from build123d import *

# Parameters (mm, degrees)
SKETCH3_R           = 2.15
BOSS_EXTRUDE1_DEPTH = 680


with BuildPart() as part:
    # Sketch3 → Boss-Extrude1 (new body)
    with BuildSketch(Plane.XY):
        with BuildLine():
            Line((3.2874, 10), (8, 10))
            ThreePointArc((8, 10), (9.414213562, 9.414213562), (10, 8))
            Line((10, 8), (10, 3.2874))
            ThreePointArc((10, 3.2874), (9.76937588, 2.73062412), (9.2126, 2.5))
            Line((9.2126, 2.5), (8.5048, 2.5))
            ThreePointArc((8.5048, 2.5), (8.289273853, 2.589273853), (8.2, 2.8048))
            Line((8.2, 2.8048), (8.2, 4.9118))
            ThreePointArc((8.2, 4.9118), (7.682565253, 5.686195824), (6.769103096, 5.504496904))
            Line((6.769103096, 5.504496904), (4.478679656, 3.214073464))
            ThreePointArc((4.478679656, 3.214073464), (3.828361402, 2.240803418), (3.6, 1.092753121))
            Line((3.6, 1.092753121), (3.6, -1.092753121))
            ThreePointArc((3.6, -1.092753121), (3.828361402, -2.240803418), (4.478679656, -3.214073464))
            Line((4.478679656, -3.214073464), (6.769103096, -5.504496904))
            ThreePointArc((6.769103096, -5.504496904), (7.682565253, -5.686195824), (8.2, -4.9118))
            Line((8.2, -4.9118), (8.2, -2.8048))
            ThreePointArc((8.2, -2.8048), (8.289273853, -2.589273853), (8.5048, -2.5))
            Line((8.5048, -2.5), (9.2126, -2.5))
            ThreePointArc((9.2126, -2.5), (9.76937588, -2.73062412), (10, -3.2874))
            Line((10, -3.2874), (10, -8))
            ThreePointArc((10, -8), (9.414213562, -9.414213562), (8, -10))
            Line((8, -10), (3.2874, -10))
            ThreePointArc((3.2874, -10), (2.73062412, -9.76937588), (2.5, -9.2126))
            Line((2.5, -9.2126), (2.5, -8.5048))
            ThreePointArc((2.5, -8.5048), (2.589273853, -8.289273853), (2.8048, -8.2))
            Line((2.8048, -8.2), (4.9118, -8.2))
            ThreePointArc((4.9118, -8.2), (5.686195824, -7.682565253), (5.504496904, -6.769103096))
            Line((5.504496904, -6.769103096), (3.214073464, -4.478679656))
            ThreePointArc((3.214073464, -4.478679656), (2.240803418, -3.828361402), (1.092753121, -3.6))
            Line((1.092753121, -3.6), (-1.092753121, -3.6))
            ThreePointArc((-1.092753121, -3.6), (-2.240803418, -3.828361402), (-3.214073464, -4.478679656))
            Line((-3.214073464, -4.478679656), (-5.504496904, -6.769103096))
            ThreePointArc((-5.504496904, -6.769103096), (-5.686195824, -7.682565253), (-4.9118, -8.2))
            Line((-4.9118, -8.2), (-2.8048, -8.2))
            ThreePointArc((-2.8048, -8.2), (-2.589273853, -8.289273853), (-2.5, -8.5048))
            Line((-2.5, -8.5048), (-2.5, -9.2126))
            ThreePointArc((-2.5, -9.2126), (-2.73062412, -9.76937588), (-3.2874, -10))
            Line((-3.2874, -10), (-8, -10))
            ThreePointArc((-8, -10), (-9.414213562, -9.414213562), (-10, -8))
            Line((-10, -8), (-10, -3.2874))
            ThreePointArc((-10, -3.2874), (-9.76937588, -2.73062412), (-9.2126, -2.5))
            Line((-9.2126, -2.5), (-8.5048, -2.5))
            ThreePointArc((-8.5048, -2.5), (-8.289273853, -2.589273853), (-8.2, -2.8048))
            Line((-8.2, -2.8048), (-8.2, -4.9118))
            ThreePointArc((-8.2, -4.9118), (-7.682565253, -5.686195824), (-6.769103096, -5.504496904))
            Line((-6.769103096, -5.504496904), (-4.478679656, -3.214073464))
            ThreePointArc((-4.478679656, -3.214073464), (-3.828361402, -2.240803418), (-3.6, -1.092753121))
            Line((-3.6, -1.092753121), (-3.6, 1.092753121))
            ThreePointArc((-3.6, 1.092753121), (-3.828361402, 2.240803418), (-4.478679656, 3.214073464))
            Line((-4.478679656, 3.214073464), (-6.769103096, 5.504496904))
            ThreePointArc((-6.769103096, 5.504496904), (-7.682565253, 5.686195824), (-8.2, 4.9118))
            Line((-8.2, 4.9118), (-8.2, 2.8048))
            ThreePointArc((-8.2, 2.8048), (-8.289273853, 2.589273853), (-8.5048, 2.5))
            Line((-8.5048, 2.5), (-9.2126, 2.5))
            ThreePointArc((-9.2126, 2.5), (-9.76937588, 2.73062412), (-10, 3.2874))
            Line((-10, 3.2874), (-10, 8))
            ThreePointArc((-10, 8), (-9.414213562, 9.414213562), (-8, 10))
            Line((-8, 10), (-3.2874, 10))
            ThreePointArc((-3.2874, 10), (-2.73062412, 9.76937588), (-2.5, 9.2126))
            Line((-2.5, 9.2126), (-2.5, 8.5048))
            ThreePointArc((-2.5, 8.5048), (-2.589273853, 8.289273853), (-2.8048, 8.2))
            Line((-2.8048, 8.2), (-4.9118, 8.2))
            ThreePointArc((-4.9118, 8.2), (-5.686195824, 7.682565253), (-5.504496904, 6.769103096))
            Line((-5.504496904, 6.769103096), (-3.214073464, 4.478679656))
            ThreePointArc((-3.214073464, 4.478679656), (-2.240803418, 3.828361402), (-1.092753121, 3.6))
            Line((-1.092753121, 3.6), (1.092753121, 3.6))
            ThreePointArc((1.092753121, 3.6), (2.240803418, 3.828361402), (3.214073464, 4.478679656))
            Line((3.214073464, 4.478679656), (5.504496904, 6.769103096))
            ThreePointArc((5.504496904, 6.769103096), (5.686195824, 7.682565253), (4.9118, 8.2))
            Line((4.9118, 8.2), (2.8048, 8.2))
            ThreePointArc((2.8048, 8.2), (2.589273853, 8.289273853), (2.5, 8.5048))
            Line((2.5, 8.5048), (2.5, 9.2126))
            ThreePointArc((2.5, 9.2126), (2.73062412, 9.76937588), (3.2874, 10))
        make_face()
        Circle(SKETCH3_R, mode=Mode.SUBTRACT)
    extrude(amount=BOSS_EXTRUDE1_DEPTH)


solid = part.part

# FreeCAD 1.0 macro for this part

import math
import FreeCAD as App
import Part
import Sketcher
from FreeCAD import Vector
Q = App.Units.Quantity

doc = App.newDocument("Part")
body = doc.addObject("PartDesign::Body", "Body")

sketch1 = body.newObject("Sketcher::SketchObject", "Sketch")
sketch1.AttachmentSupport = (doc.getObject("XY_Plane"), [""])
sketch1.MapMode = "FlatFace"
sketch1.addGeometry(Part.LineSegment(Vector(8, 10, 0), Vector(3.29, 10, 0)), False)
sketch1.addGeometry(Part.ArcOfCircle(Part.Circle(Vector(3.29, 9.21, 0), Vector(0, 0, 1), 0.79), math.radians(90), math.radians(180)), False)
sketch1.addGeometry(Part.LineSegment(Vector(2.5, 9.21, 0), Vector(2.5, 8.5, 0)), False)
sketch1.addGeometry(Part.ArcOfCircle(Part.Circle(Vector(2.8, 8.5, 0), Vector(0, 0, 1), 0.3), math.radians(180), math.radians(270)), False)
sketch1.addGeometry(Part.LineSegment(Vector(2.8, 8.2, 0), Vector(4.91, 8.2, 0)), False)
sketch1.addGeometry(Part.ArcOfCircle(Part.Circle(Vector(4.91, 7.36, 0), Vector(0, 0, 1), 0.84), math.radians(-45), math.radians(90)), False)
sketch1.addGeometry(Part.LineSegment(Vector(5.5, 6.77, 0), Vector(3.21, 4.48, 0)), False)
sketch1.addGeometry(Part.ArcOfCircle(Part.Circle(Vector(1.09, 6.6, 0), Vector(0, 0, 1), 3), math.radians(-90), math.radians(-45)), False)
sketch1.addGeometry(Part.LineSegment(Vector(1.09, 3.6, 0), Vector(-1.09, 3.6, 0)), False)
sketch1.addGeometry(Part.ArcOfCircle(Part.Circle(Vector(-1.09, 6.6, 0), Vector(0, 0, 1), 3), math.radians(-135), math.radians(-90)), False)
sketch1.addGeometry(Part.LineSegment(Vector(-3.21, 4.48, 0), Vector(-5.5, 6.77, 0)), False)
sketch1.addGeometry(Part.ArcOfCircle(Part.Circle(Vector(-4.91, 7.36, 0), Vector(0, 0, 1), 0.84), math.radians(90), math.radians(225)), False)
sketch1.addGeometry(Part.LineSegment(Vector(-4.91, 8.2, 0), Vector(-2.8, 8.2, 0)), False)
sketch1.addGeometry(Part.ArcOfCircle(Part.Circle(Vector(-2.8, 8.5, 0), Vector(0, 0, 1), 0.3), math.radians(-90), math.radians(0)), False)
sketch1.addGeometry(Part.LineSegment(Vector(-2.5, 8.5, 0), Vector(-2.5, 9.21, 0)), False)
sketch1.addGeometry(Part.ArcOfCircle(Part.Circle(Vector(-3.29, 9.21, 0), Vector(0, 0, 1), 0.79), math.radians(0), math.radians(90)), False)
sketch1.addGeometry(Part.LineSegment(Vector(-3.29, 10, 0), Vector(-8, 10, 0)), False)
sketch1.addGeometry(Part.ArcOfCircle(Part.Circle(Vector(-8, 8, 0), Vector(0, 0, 1), 2), math.radians(90), math.radians(180)), False)
sketch1.addGeometry(Part.LineSegment(Vector(-10, 8, 0), Vector(-10, 3.29, 0)), False)
sketch1.addGeometry(Part.ArcOfCircle(Part.Circle(Vector(-9.21, 3.29, 0), Vector(0, 0, 1), 0.79), math.radians(180), math.radians(270)), False)
sketch1.addGeometry(Part.LineSegment(Vector(-9.21, 2.5, 0), Vector(-8.5, 2.5, 0)), False)
sketch1.addGeometry(Part.ArcOfCircle(Part.Circle(Vector(-8.5, 2.8, 0), Vector(0, 0, 1), 0.3), math.radians(-90), math.radians(0)), False)
sketch1.addGeometry(Part.LineSegment(Vector(-8.2, 2.8, 0), Vector(-8.2, 4.91, 0)), False)
sketch1.addGeometry(Part.ArcOfCircle(Part.Circle(Vector(-7.36, 4.91, 0), Vector(0, 0, 1), 0.84), math.radians(45), math.radians(180)), False)
sketch1.addGeometry(Part.LineSegment(Vector(-6.77, 5.5, 0), Vector(-4.48, 3.21, 0)), False)
sketch1.addGeometry(Part.ArcOfCircle(Part.Circle(Vector(-6.6, 1.09, 0), Vector(0, 0, 1), 3), math.radians(0), math.radians(45)), False)
sketch1.addGeometry(Part.LineSegment(Vector(-3.6, 1.09, 0), Vector(-3.6, -1.09, 0)), False)
sketch1.addGeometry(Part.ArcOfCircle(Part.Circle(Vector(-6.6, -1.09, 0), Vector(0, 0, 1), 3), math.radians(-45), math.radians(0)), False)
sketch1.addGeometry(Part.LineSegment(Vector(-4.48, -3.21, 0), Vector(-6.77, -5.5, 0)), False)
sketch1.addGeometry(Part.ArcOfCircle(Part.Circle(Vector(-7.36, -4.91, 0), Vector(0, 0, 1), 0.84), math.radians(180), math.radians(315)), False)
sketch1.addGeometry(Part.LineSegment(Vector(-8.2, -4.91, 0), Vector(-8.2, -2.8, 0)), False)
sketch1.addGeometry(Part.ArcOfCircle(Part.Circle(Vector(-8.5, -2.8, 0), Vector(0, 0, 1), 0.3), math.radians(0), math.radians(90)), False)
sketch1.addGeometry(Part.LineSegment(Vector(-8.5, -2.5, 0), Vector(-9.21, -2.5, 0)), False)
sketch1.addGeometry(Part.ArcOfCircle(Part.Circle(Vector(-9.21, -3.29, 0), Vector(0, 0, 1), 0.79), math.radians(90), math.radians(180)), False)
sketch1.addGeometry(Part.LineSegment(Vector(-10, -3.29, 0), Vector(-10, -8, 0)), False)
sketch1.addGeometry(Part.ArcOfCircle(Part.Circle(Vector(-8, -8, 0), Vector(0, 0, 1), 2), math.radians(-180), math.radians(-90)), False)
sketch1.addGeometry(Part.LineSegment(Vector(-8, -10, 0), Vector(-3.29, -10, 0)), False)
sketch1.addGeometry(Part.ArcOfCircle(Part.Circle(Vector(-3.29, -9.21, 0), Vector(0, 0, 1), 0.79), math.radians(-90), math.radians(0)), False)
sketch1.addGeometry(Part.LineSegment(Vector(-2.5, -9.21, 0), Vector(-2.5, -8.5, 0)), False)
sketch1.addGeometry(Part.ArcOfCircle(Part.Circle(Vector(-2.8, -8.5, 0), Vector(0, 0, 1), 0.3), math.radians(0), math.radians(90)), False)
sketch1.addGeometry(Part.LineSegment(Vector(-2.8, -8.2, 0), Vector(-4.91, -8.2, 0)), False)
sketch1.addGeometry(Part.ArcOfCircle(Part.Circle(Vector(-4.91, -7.36, 0), Vector(0, 0, 1), 0.84), math.radians(135), math.radians(270)), False)
sketch1.addGeometry(Part.LineSegment(Vector(-5.5, -6.77, 0), Vector(-3.21, -4.48, 0)), False)
sketch1.addGeometry(Part.ArcOfCircle(Part.Circle(Vector(-1.09, -6.6, 0), Vector(0, 0, 1), 3), math.radians(90), math.radians(135)), False)
sketch1.addGeometry(Part.LineSegment(Vector(-1.09, -3.6, 0), Vector(1.09, -3.6, 0)), False)
sketch1.addGeometry(Part.ArcOfCircle(Part.Circle(Vector(1.09, -6.6, 0), Vector(0, 0, 1), 3), math.radians(45), math.radians(90)), False)
sketch1.addGeometry(Part.LineSegment(Vector(3.21, -4.48, 0), Vector(5.5, -6.77, 0)), False)
sketch1.addGeometry(Part.ArcOfCircle(Part.Circle(Vector(4.91, -7.36, 0), Vector(0, 0, 1), 0.84), math.radians(-90), math.radians(45)), False)
sketch1.addGeometry(Part.LineSegment(Vector(4.91, -8.2, 0), Vector(2.8, -8.2, 0)), False)
sketch1.addGeometry(Part.ArcOfCircle(Part.Circle(Vector(2.8, -8.5, 0), Vector(0, 0, 1), 0.3), math.radians(90), math.radians(180)), False)
sketch1.addGeometry(Part.LineSegment(Vector(2.5, -8.5, 0), Vector(2.5, -9.21, 0)), False)
sketch1.addGeometry(Part.ArcOfCircle(Part.Circle(Vector(3.29, -9.21, 0), Vector(0, 0, 1), 0.79), math.radians(180), math.radians(270)), False)
sketch1.addGeometry(Part.LineSegment(Vector(3.29, -10, 0), Vector(8, -10, 0)), False)
sketch1.addGeometry(Part.ArcOfCircle(Part.Circle(Vector(8, -8, 0), Vector(0, 0, 1), 2), math.radians(-90), math.radians(0)), False)
sketch1.addGeometry(Part.LineSegment(Vector(10, -8, 0), Vector(10, -3.29, 0)), False)
sketch1.addGeometry(Part.ArcOfCircle(Part.Circle(Vector(9.21, -3.29, 0), Vector(0, 0, 1), 0.79), math.radians(0), math.radians(90)), False)
sketch1.addGeometry(Part.LineSegment(Vector(9.21, -2.5, 0), Vector(8.5, -2.5, 0)), False)
sketch1.addGeometry(Part.ArcOfCircle(Part.Circle(Vector(8.5, -2.8, 0), Vector(0, 0, 1), 0.3), math.radians(90), math.radians(180)), False)
sketch1.addGeometry(Part.LineSegment(Vector(8.2, -2.8, 0), Vector(8.2, -4.91, 0)), False)
sketch1.addGeometry(Part.ArcOfCircle(Part.Circle(Vector(7.36, -4.91, 0), Vector(0, 0, 1), 0.84), math.radians(-135), math.radians(0)), False)
sketch1.addGeometry(Part.LineSegment(Vector(6.77, -5.5, 0), Vector(4.48, -3.21, 0)), False)
sketch1.addGeometry(Part.ArcOfCircle(Part.Circle(Vector(6.6, -1.09, 0), Vector(0, 0, 1), 3), math.radians(180), math.radians(225)), False)
sketch1.addGeometry(Part.LineSegment(Vector(3.6, -1.09, 0), Vector(3.6, 1.09, 0)), False)
sketch1.addGeometry(Part.ArcOfCircle(Part.Circle(Vector(6.6, 1.09, 0), Vector(0, 0, 1), 3), math.radians(135), math.radians(180)), False)
sketch1.addGeometry(Part.LineSegment(Vector(4.48, 3.21, 0), Vector(6.77, 5.5, 0)), False)
sketch1.addGeometry(Part.ArcOfCircle(Part.Circle(Vector(7.36, 4.91, 0), Vector(0, 0, 1), 0.84), math.radians(0), math.radians(135)), False)
sketch1.addGeometry(Part.LineSegment(Vector(8.2, 4.91, 0), Vector(8.2, 2.8, 0)), False)
sketch1.addGeometry(Part.ArcOfCircle(Part.Circle(Vector(8.5, 2.8, 0), Vector(0, 0, 1), 0.3), math.radians(180), math.radians(270)), False)
sketch1.addGeometry(Part.LineSegment(Vector(8.5, 2.5, 0), Vector(9.21, 2.5, 0)), False)
sketch1.addGeometry(Part.ArcOfCircle(Part.Circle(Vector(9.21, 3.29, 0), Vector(0, 0, 1), 0.79), math.radians(-90), math.radians(0)), False)
sketch1.addGeometry(Part.LineSegment(Vector(10, 3.29, 0), Vector(10, 8, 0)), False)
sketch1.addGeometry(Part.ArcOfCircle(Part.Circle(Vector(8, 8, 0), Vector(0, 0, 1), 2), math.radians(0), math.radians(90)), False)
sketch1.addGeometry(Part.Circle(Vector(0, 0, 0), Vector(0, 0, 1), 2.15), False)
sketch1.addConstraint(Sketcher.Constraint("Tangent", 0, 2, 1, 1))
sketch1.addConstraint(Sketcher.Constraint("Tangent", 1, 2, 2, 1))
sketch1.addConstraint(Sketcher.Constraint("Tangent", 2, 2, 3, 1))
sketch1.addConstraint(Sketcher.Constraint("Tangent", 3, 2, 4, 1))
sketch1.addConstraint(Sketcher.Constraint("Tangent", 4, 2, 5, 2))
sketch1.addConstraint(Sketcher.Constraint("Tangent", 5, 1, 6, 1))
sketch1.addConstraint(Sketcher.Constraint("Tangent", 6, 2, 7, 2))
sketch1.addConstraint(Sketcher.Constraint("Tangent", 7, 1, 8, 1))
sketch1.addConstraint(Sketcher.Constraint("Tangent", 8, 2, 9, 2))
sketch1.addConstraint(Sketcher.Constraint("Tangent", 9, 1, 10, 1))
sketch1.addConstraint(Sketcher.Constraint("Tangent", 10, 2, 11, 2))
sketch1.addConstraint(Sketcher.Constraint("Tangent", 11, 1, 12, 1))
sketch1.addConstraint(Sketcher.Constraint("Tangent", 12, 2, 13, 1))
sketch1.addConstraint(Sketcher.Constraint("Tangent", 13, 2, 14, 1))
sketch1.addConstraint(Sketcher.Constraint("Tangent", 14, 2, 15, 1))
sketch1.addConstraint(Sketcher.Constraint("Tangent", 15, 2, 16, 1))
sketch1.addConstraint(Sketcher.Constraint("Tangent", 16, 2, 17, 1))
sketch1.addConstraint(Sketcher.Constraint("Tangent", 17, 2, 18, 1))
sketch1.addConstraint(Sketcher.Constraint("Tangent", 18, 2, 19, 1))
sketch1.addConstraint(Sketcher.Constraint("Tangent", 19, 2, 20, 1))
sketch1.addConstraint(Sketcher.Constraint("Tangent", 20, 2, 21, 1))
sketch1.addConstraint(Sketcher.Constraint("Tangent", 21, 2, 22, 1))
sketch1.addConstraint(Sketcher.Constraint("Tangent", 22, 2, 23, 2))
sketch1.addConstraint(Sketcher.Constraint("Tangent", 23, 1, 24, 1))
sketch1.addConstraint(Sketcher.Constraint("Tangent", 24, 2, 25, 2))
sketch1.addConstraint(Sketcher.Constraint("Tangent", 25, 1, 26, 1))
sketch1.addConstraint(Sketcher.Constraint("Tangent", 26, 2, 27, 2))
sketch1.addConstraint(Sketcher.Constraint("Tangent", 27, 1, 28, 1))
sketch1.addConstraint(Sketcher.Constraint("Tangent", 28, 2, 29, 2))
sketch1.addConstraint(Sketcher.Constraint("Tangent", 29, 1, 30, 1))
sketch1.addConstraint(Sketcher.Constraint("Tangent", 30, 2, 31, 1))
sketch1.addConstraint(Sketcher.Constraint("Tangent", 31, 2, 32, 1))
sketch1.addConstraint(Sketcher.Constraint("Tangent", 32, 2, 33, 1))
sketch1.addConstraint(Sketcher.Constraint("Tangent", 33, 2, 34, 1))
sketch1.addConstraint(Sketcher.Constraint("Tangent", 34, 2, 35, 1))
sketch1.addConstraint(Sketcher.Constraint("Tangent", 35, 2, 36, 1))
sketch1.addConstraint(Sketcher.Constraint("Tangent", 36, 2, 37, 1))
sketch1.addConstraint(Sketcher.Constraint("Tangent", 37, 2, 38, 1))
sketch1.addConstraint(Sketcher.Constraint("Tangent", 38, 2, 39, 1))
sketch1.addConstraint(Sketcher.Constraint("Tangent", 39, 2, 40, 1))
sketch1.addConstraint(Sketcher.Constraint("Tangent", 40, 2, 41, 2))
sketch1.addConstraint(Sketcher.Constraint("Tangent", 41, 1, 42, 1))
sketch1.addConstraint(Sketcher.Constraint("Tangent", 42, 2, 43, 2))
sketch1.addConstraint(Sketcher.Constraint("Tangent", 43, 1, 44, 1))
sketch1.addConstraint(Sketcher.Constraint("Tangent", 44, 2, 45, 2))
sketch1.addConstraint(Sketcher.Constraint("Tangent", 45, 1, 46, 1))
sketch1.addConstraint(Sketcher.Constraint("Tangent", 46, 2, 47, 2))
sketch1.addConstraint(Sketcher.Constraint("Tangent", 47, 1, 48, 1))
sketch1.addConstraint(Sketcher.Constraint("Tangent", 48, 2, 49, 1))
sketch1.addConstraint(Sketcher.Constraint("Tangent", 49, 2, 50, 1))
sketch1.addConstraint(Sketcher.Constraint("Tangent", 50, 2, 51, 1))
sketch1.addConstraint(Sketcher.Constraint("Tangent", 51, 2, 52, 1))
sketch1.addConstraint(Sketcher.Constraint("Tangent", 52, 2, 53, 1))
sketch1.addConstraint(Sketcher.Constraint("Tangent", 53, 2, 54, 1))
sketch1.addConstraint(Sketcher.Constraint("Tangent", 54, 2, 55, 1))
sketch1.addConstraint(Sketcher.Constraint("Tangent", 55, 2, 56, 1))
sketch1.addConstraint(Sketcher.Constraint("Tangent", 56, 2, 57, 1))
sketch1.addConstraint(Sketcher.Constraint("Tangent", 57, 2, 58, 1))
sketch1.addConstraint(Sketcher.Constraint("Tangent", 58, 2, 59, 2))
sketch1.addConstraint(Sketcher.Constraint("Tangent", 59, 1, 60, 1))
sketch1.addConstraint(Sketcher.Constraint("Tangent", 60, 2, 61, 2))
sketch1.addConstraint(Sketcher.Constraint("Tangent", 61, 1, 62, 1))
sketch1.addConstraint(Sketcher.Constraint("Tangent", 62, 2, 63, 2))
sketch1.addConstraint(Sketcher.Constraint("Tangent", 63, 1, 64, 1))
sketch1.addConstraint(Sketcher.Constraint("Tangent", 64, 2, 65, 2))
sketch1.addConstraint(Sketcher.Constraint("Tangent", 65, 1, 66, 1))
sketch1.addConstraint(Sketcher.Constraint("Tangent", 66, 2, 67, 1))
sketch1.addConstraint(Sketcher.Constraint("Tangent", 67, 2, 68, 1))
sketch1.addConstraint(Sketcher.Constraint("Tangent", 68, 2, 69, 1))
sketch1.addConstraint(Sketcher.Constraint("Tangent", 69, 2, 70, 1))
sketch1.addConstraint(Sketcher.Constraint("Tangent", 70, 2, 71, 1))
sketch1.addConstraint(Sketcher.Constraint("Tangent", 71, 2, 0, 1))
sketch1.addConstraint(Sketcher.Constraint("Horizontal", 0))
sketch1.addConstraint(Sketcher.Constraint("Vertical", 2))
sketch1.addConstraint(Sketcher.Constraint("Horizontal", 4))
sketch1.addConstraint(Sketcher.Constraint("Horizontal", 8))
sketch1.addConstraint(Sketcher.Constraint("Horizontal", 12))
sketch1.addConstraint(Sketcher.Constraint("Vertical", 14))
sketch1.addConstraint(Sketcher.Constraint("Horizontal", 16))
sketch1.addConstraint(Sketcher.Constraint("Vertical", 18))
sketch1.addConstraint(Sketcher.Constraint("Horizontal", 20))
sketch1.addConstraint(Sketcher.Constraint("Vertical", 22))
sketch1.addConstraint(Sketcher.Constraint("Vertical", 26))
sketch1.addConstraint(Sketcher.Constraint("Vertical", 30))
sketch1.addConstraint(Sketcher.Constraint("Horizontal", 32))
sketch1.addConstraint(Sketcher.Constraint("Vertical", 34))
sketch1.addConstraint(Sketcher.Constraint("Horizontal", 36))
sketch1.addConstraint(Sketcher.Constraint("Vertical", 38))
sketch1.addConstraint(Sketcher.Constraint("Horizontal", 40))
sketch1.addConstraint(Sketcher.Constraint("Horizontal", 44))
sketch1.addConstraint(Sketcher.Constraint("Horizontal", 48))
sketch1.addConstraint(Sketcher.Constraint("Vertical", 50))
sketch1.addConstraint(Sketcher.Constraint("Horizontal", 52))
sketch1.addConstraint(Sketcher.Constraint("Vertical", 54))
sketch1.addConstraint(Sketcher.Constraint("Horizontal", 56))
sketch1.addConstraint(Sketcher.Constraint("Vertical", 58))
sketch1.addConstraint(Sketcher.Constraint("Vertical", 62))
sketch1.addConstraint(Sketcher.Constraint("Vertical", 66))
sketch1.addConstraint(Sketcher.Constraint("Horizontal", 68))
sketch1.addConstraint(Sketcher.Constraint("Vertical", 70))
sketch1.addConstraint(Sketcher.Constraint("Coincident", 72, 3, -1, 1))
sketch1.addConstraint(Sketcher.Constraint("Equal", 7, 9))
sketch1.addConstraint(Sketcher.Constraint("Equal", 5, 11))
sketch1.addConstraint(Sketcher.Constraint("Equal", 3, 13))
sketch1.addConstraint(Sketcher.Constraint("Equal", 1, 15))
sketch1.addConstraint(Sketcher.Constraint("Equal", 15, 19))
sketch1.addConstraint(Sketcher.Constraint("Equal", 13, 21))
sketch1.addConstraint(Sketcher.Constraint("Equal", 11, 23))
sketch1.addConstraint(Sketcher.Constraint("Equal", 9, 25))
sketch1.addConstraint(Sketcher.Constraint("Equal", 25, 27))
sketch1.addConstraint(Sketcher.Constraint("Equal", 23, 29))
sketch1.addConstraint(Sketcher.Constraint("Equal", 21, 31))
sketch1.addConstraint(Sketcher.Constraint("Equal", 19, 33))
sketch1.addConstraint(Sketcher.Constraint("Equal", 17, 35))
sketch1.addConstraint(Sketcher.Constraint("Equal", 33, 37))
sketch1.addConstraint(Sketcher.Constraint("Equal", 31, 39))
sketch1.addConstraint(Sketcher.Constraint("Equal", 29, 41))
sketch1.addConstraint(Sketcher.Constraint("Equal", 27, 43))
sketch1.addConstraint(Sketcher.Constraint("Equal", 43, 45))
sketch1.addConstraint(Sketcher.Constraint("Equal", 41, 47))
sketch1.addConstraint(Sketcher.Constraint("Equal", 39, 49))
sketch1.addConstraint(Sketcher.Constraint("Equal", 37, 51))
sketch1.addConstraint(Sketcher.Constraint("Equal", 35, 53))
sketch1.addConstraint(Sketcher.Constraint("Equal", 51, 55))
sketch1.addConstraint(Sketcher.Constraint("Equal", 49, 57))
sketch1.addConstraint(Sketcher.Constraint("Equal", 47, 59))
sketch1.addConstraint(Sketcher.Constraint("Equal", 45, 61))
sketch1.addConstraint(Sketcher.Constraint("Equal", 61, 63))
sketch1.addConstraint(Sketcher.Constraint("Equal", 59, 65))
sketch1.addConstraint(Sketcher.Constraint("Equal", 57, 67))
sketch1.addConstraint(Sketcher.Constraint("Equal", 55, 69))
sketch1.addConstraint(Sketcher.Constraint("Equal", 53, 71))
sketch1.addConstraint(Sketcher.Constraint("Symmetric", 1, 3, 37, 3, -1, 1))
sketch1.addConstraint(Sketcher.Constraint("Symmetric", 5, 3, 41, 3, -1, 1))
sketch1.addConstraint(Sketcher.Constraint("Symmetric", 7, 3, 43, 3, -1, 1))
sketch1.addConstraint(Sketcher.Constraint("Symmetric", 11, 3, 47, 3, -1, 1))
sketch1.addConstraint(Sketcher.Constraint("Symmetric", 15, 3, 51, 3, -1, 1))
sketch1.addConstraint(Sketcher.Constraint("Symmetric", 19, 3, 55, 3, -1, 1))
sketch1.addConstraint(Sketcher.Constraint("Symmetric", 23, 3, 59, 3, -1, 1))
sketch1.addConstraint(Sketcher.Constraint("Symmetric", 25, 3, 61, 3, -1, 1))
sketch1.addConstraint(Sketcher.Constraint("Symmetric", 29, 3, 65, 3, -1, 1))
sketch1.addConstraint(Sketcher.Constraint("Symmetric", 33, 3, 69, 3, -1, 1))
sketch1.addConstraint(Sketcher.Constraint("Symmetric", 5, 3, 11, 3, -2))
sketch1.addConstraint(Sketcher.Constraint("Symmetric", 1, 3, 15, 3, -2))
sketch1.addConstraint(Sketcher.Constraint("Symmetric", 33, 3, 55, 3, -2))
sketch1.addConstraint(Sketcher.Constraint("Symmetric", 29, 3, 59, 3, -2))
sketch1.addConstraint(Sketcher.Constraint("Perpendicular", 6, 10))
sketch1.addConstraint(Sketcher.Constraint("Parallel", 10, 24))
sketch1.addConstraint(Sketcher.Constraint("Perpendicular", 24, 28))
sketch1.addConstraint(Sketcher.Constraint("Perpendicular", 42, 46))
sketch1.addConstraint(Sketcher.Constraint("Perpendicular", 60, 64))
sketch1.addConstraint(Sketcher.Constraint("Horizontal", 27, 3, 61, 3))
sketch1.addConstraint(Sketcher.Constraint("Equal", 68, 2))
sketch1.addConstraint(Sketcher.Constraint("Equal", 52, 18))
sketch1.addConstraint(Sketcher.Constraint("Equal", 48, 22))
sketch1.addConstraint(Sketcher.Constraint("Equal", 44, 26))
sketch1.addConstraint(Sketcher.Constraint("Equal", 10, 24))
sketch1.addConstraint(Sketcher.Constraint("Radius", 7, Q("3 mm")))
sketch1.addConstraint(Sketcher.Constraint("Radius", 17, Q("2 mm")))
sketch1.addConstraint(Sketcher.Constraint("Diameter", 72, Q("4.3 mm")))
sketch1.addConstraint(Sketcher.Constraint("DistanceX", 17, 3, -1, 1, Q("8 mm")))
sketch1.addConstraint(Sketcher.Constraint("DistanceY", -1, 1, 7, 3, Q("6.6 mm")))
sketch1.addConstraint(Sketcher.Constraint("DistanceX", -1, 1, 1, 2, Q("2.5 mm")))
sketch1.addConstraint(Sketcher.Constraint("DistanceY", -1, 1, 3, 2, Q("8.2 mm")))
sketch1.addConstraint(Sketcher.Constraint("Radius", 1, Q("0.7874 mm")))
sketch1.addConstraint(Sketcher.Constraint("Radius", 3, Q("0.3048 mm")))
sketch1.addConstraint(Sketcher.Constraint("Radius", 5, Q("0.8382 mm")))
sketch1.addConstraint(Sketcher.Constraint("DistanceX", 4, 1, 4, 2, Q("2.107 mm")))
pad1 = body.newObject("PartDesign::Pad", "Pad")
pad1.Profile = sketch1
pad1.Length = 680

doc.recompute()
